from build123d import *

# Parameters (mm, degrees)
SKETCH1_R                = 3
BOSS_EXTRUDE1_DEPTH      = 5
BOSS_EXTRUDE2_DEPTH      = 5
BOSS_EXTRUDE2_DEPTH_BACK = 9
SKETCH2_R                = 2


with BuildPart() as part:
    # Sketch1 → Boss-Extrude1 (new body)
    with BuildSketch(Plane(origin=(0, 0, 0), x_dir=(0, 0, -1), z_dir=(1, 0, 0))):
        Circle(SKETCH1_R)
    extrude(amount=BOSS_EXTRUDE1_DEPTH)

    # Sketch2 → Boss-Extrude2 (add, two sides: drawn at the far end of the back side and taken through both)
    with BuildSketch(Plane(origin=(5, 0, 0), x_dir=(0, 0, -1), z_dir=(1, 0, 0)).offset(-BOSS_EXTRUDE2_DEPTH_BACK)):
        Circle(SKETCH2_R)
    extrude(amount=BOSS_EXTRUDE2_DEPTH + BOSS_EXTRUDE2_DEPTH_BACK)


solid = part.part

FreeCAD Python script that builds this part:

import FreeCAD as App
import Part
import Sketcher
from FreeCAD import Vector

doc = App.newDocument("Part")
body = doc.addObject("PartDesign::Body", "Body")

# Sketch on YZ plane
sketch1 = body.newObject("Sketcher::SketchObject", "Sketch")
sketch1.AttachmentSupport = (doc.getObject("YZ_Plane"), [""])
sketch1.MapMode = "FlatFace"
sketch1.addGeometry(Part.Circle(Vector(0, 0, 0), Vector(0, 0, 1), 3), False)
sketch1.addConstraint([
    Sketcher.Constraint("Coincident", 0, 3, -1, 1),
    Sketcher.Constraint("Diameter", 0, 6.0),
])
pad1 = body.newObject("PartDesign::Pad", "Pad")
pad1.Profile = sketch1
pad1.Length = 5

# Sketch on YZ plane
sketch2 = body.newObject("Sketcher::SketchObject", "Sketch001")
sketch2.AttachmentSupport = (doc.getObject("YZ_Plane"), [""])
sketch2.MapMode = "FlatFace"
sketch2.AttachmentOffset = App.Placement(Vector(0, 0, 5), App.Rotation())
sketch2.addGeometry(Part.Circle(Vector(0, 0, 0), Vector(0, 0, 1), 2), False)
sketch2.addConstraint([
    Sketcher.Constraint("Coincident", 0, 3, -1, 1),
    Sketcher.Constraint("Diameter", 0, 4.0),
])
pad2 = body.newObject("PartDesign::Pad", "Pad001")
pad2.Profile = sketch2
pad2.Type = "TwoLengths"
pad2.Length = 5
pad2.Length2 = 9

doc.recompute()
